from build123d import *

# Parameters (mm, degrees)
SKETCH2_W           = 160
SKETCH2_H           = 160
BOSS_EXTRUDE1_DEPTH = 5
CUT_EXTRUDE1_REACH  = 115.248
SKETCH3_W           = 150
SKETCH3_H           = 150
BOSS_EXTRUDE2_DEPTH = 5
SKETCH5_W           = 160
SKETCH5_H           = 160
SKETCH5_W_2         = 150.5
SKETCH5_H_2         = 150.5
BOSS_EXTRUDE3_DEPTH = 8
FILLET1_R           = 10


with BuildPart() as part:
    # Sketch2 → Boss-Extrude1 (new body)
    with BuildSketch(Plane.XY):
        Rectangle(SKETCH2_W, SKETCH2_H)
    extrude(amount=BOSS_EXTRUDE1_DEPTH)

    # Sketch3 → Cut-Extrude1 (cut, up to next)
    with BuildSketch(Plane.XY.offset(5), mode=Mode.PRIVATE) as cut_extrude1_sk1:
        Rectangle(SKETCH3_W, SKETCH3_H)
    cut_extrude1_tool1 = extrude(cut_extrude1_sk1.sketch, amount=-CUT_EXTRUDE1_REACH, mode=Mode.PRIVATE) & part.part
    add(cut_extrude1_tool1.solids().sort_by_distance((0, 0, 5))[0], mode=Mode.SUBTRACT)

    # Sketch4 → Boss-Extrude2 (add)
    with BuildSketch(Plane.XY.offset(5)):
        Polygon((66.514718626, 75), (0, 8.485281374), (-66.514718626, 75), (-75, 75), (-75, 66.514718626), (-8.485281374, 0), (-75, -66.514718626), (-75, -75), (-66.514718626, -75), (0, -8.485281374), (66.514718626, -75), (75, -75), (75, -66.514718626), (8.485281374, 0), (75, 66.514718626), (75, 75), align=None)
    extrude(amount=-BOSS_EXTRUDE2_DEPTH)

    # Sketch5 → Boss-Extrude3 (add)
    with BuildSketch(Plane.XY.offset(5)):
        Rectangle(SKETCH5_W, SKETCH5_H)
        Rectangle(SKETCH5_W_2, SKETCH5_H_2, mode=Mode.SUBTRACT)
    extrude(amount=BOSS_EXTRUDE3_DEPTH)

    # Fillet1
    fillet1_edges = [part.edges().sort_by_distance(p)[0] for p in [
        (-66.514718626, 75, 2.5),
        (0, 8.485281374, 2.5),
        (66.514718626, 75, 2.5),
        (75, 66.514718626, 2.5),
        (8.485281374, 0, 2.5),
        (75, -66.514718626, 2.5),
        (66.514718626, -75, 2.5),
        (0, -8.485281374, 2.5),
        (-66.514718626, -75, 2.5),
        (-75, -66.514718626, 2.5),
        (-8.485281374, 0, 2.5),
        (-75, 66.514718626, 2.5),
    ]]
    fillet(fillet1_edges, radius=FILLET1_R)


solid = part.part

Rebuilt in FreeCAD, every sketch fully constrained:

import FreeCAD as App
import Part
import Sketcher
from FreeCAD import Vector
Q = App.Units.Quantity


def edges_at(feature, points):
    """Names of the edges that pass closest to the given points."""
    edges = feature.Shape.Edges
    near = lambda p: min(range(len(edges)), key=lambda i: edges[i].distToShape(Part.Vertex(*p))[0])
    return sorted({f"Edge{near(p) + 1}" for p in points})

doc = App.newDocument("Part")
body = doc.addObject("PartDesign::Body", "Body")

# Sketch on XY plane
sketch1 = body.newObject("Sketcher::SketchObject", "Sketch")
sketch1.AttachmentSupport = (doc.getObject("XY_Plane"), [""])
sketch1.MapMode = "FlatFace"
sketch1.addGeometry([
    Part.LineSegment(Vector(-80, 80, 0), Vector(-80, -80, 0)),
    Part.LineSegment(Vector(-80, -80, 0), Vector(80, -80, 0)),
    Part.LineSegment(Vector(80, -80, 0), Vector(80, 80, 0)),
    Part.LineSegment(Vector(80, 80, 0), Vector(-80, 80, 0)),
], False)
sketch1.addConstraint([
    Sketcher.Constraint("Coincident", 0, 2, 1, 1),
    Sketcher.Constraint("Coincident", 1, 2, 2, 1),
    Sketcher.Constraint("Coincident", 2, 2, 3, 1),
    Sketcher.Constraint("Coincident", 3, 2, 0, 1),
    Sketcher.Constraint("Vertical", 0),
    Sketcher.Constraint("Horizontal", 1),
    Sketcher.Constraint("Vertical", 2),
    Sketcher.Constraint("Horizontal", 3),
    Sketcher.Constraint("Symmetric", 0, 2, 2, 2, -1, 1),
    Sketcher.Constraint("Equal", 3, 0),
    Sketcher.Constraint("DistanceX", 1, 1, 1, 2, Q("160 mm")),
])
pad1 = body.newObject("PartDesign::Pad", "Pad")
pad1.Profile = sketch1
pad1.Length = 5

# Sketch on XY plane
sketch2 = body.newObject("Sketcher::SketchObject", "Sketch001")
sketch2.AttachmentSupport = (doc.getObject("XY_Plane"), [""])
sketch2.MapMode = "FlatFace"
sketch2.AttachmentOffset = App.Placement(Vector(0, 0, 5), App.Rotation())
sketch2.addGeometry([
    Part.LineSegment(Vector(-75, 75, 0), Vector(-75, -75, 0)),
    Part.LineSegment(Vector(-75, -75, 0), Vector(75, -75, 0)),
    Part.LineSegment(Vector(75, -75, 0), Vector(75, 75, 0)),
    Part.LineSegment(Vector(75, 75, 0), Vector(-75, 75, 0)),
], False)
sketch2.addConstraint([
    Sketcher.Constraint("Coincident", 0, 2, 1, 1),
    Sketcher.Constraint("Coincident", 1, 2, 2, 1),
    Sketcher.Constraint("Coincident", 2, 2, 3, 1),
    Sketcher.Constraint("Coincident", 3, 2, 0, 1),
    Sketcher.Constraint("Vertical", 0),
    Sketcher.Constraint("Horizontal", 1),
    Sketcher.Constraint("Vertical", 2),
    Sketcher.Constraint("Horizontal", 3),
    Sketcher.Constraint("Symmetric", 0, 2, 2, 2, -1, 1),
    Sketcher.Constraint("Equal", 3, 0),
    Sketcher.Constraint("DistanceX", 1, 1, 1, 2, Q("150 mm")),
])
pocket1 = body.newObject("PartDesign::Pocket", "Pocket")
pocket1.Profile = sketch2
pocket1.Type = "UpToFirst"

# Sketch on XY plane
sketch3 = body.newObject("Sketcher::SketchObject", "Sketch002")
sketch3.AttachmentSupport = (doc.getObject("XY_Plane"), [""])
sketch3.MapMode = "FlatFace"
sketch3.AttachmentOffset = App.Placement(Vector(0, 0, 5), App.Rotation())
sketch3.addGeometry([
    Part.LineSegment(Vector(66.514719, 75, 0), Vector(0, 8.485281, 0)),  # 0
    Part.LineSegment(Vector(0, 8.485281, 0), Vector(-66.514719, 75, 0)),  # 1
    Part.LineSegment(Vector(-66.514719, 75, 0), Vector(-75, 75, 0)),  # 2
    Part.LineSegment(Vector(-75, 75, 0), Vector(-75, 66.514719, 0)),  # 3
    Part.LineSegment(Vector(-75, 66.514719, 0), Vector(-8.485281, 0, 0)),  # 4
    Part.LineSegment(Vector(-8.485281, 0, 0), Vector(-75, -66.514719, 0)),  # 5
    Part.LineSegment(Vector(-75, -66.514719, 0), Vector(-75, -75, 0)),  # 6
    Part.LineSegment(Vector(-75, -75, 0), Vector(-66.514719, -75, 0)),  # 7
    Part.LineSegment(Vector(-66.514719, -75, 0), Vector(0, -8.485281, 0)),  # 8
    Part.LineSegment(Vector(0, -8.485281, 0), Vector(66.514719, -75, 0)),  # 9
    Part.LineSegment(Vector(66.514719, -75, 0), Vector(75, -75, 0)),  # 10
    Part.LineSegment(Vector(75, -75, 0), Vector(75, -66.514719, 0)),  # 11
    Part.LineSegment(Vector(75, -66.514719, 0), Vector(8.485281, 0, 0)),  # 12
    Part.LineSegment(Vector(8.485281, 0, 0), Vector(75, 66.514719, 0)),  # 13
    Part.LineSegment(Vector(75, 66.514719, 0), Vector(75, 75, 0)),  # 14
    Part.LineSegment(Vector(75, 75, 0), Vector(66.514719, 75, 0)),  # 15
], False)
sketch3.addConstraint([
    Sketcher.Constraint("Coincident", 0, 2, 1, 1),
    Sketcher.Constraint("Coincident", 1, 2, 2, 1),
    Sketcher.Constraint("Coincident", 2, 2, 3, 1),
    Sketcher.Constraint("Coincident", 3, 2, 4, 1),
    Sketcher.Constraint("Coincident", 4, 2, 5, 1),
    Sketcher.Constraint("Coincident", 5, 2, 6, 1),
    Sketcher.Constraint("Coincident", 6, 2, 7, 1),
    Sketcher.Constraint("Coincident", 7, 2, 8, 1),
    Sketcher.Constraint("Coincident", 8, 2, 9, 1),
    Sketcher.Constraint("Coincident", 9, 2, 10, 1),
    Sketcher.Constraint("Coincident", 10, 2, 11, 1),
    Sketcher.Constraint("Coincident", 11, 2, 12, 1),
    Sketcher.Constraint("Coincident", 12, 2, 13, 1),
    Sketcher.Constraint("Coincident", 13, 2, 14, 1),
    Sketcher.Constraint("Coincident", 14, 2, 15, 1),
    Sketcher.Constraint("Coincident", 15, 2, 0, 1),
    Sketcher.Constraint("Horizontal", 2),
    Sketcher.Constraint("Vertical", 3),
    Sketcher.Constraint("Vertical", 6),
    Sketcher.Constraint("Horizontal", 7),
    Sketcher.Constraint("Horizontal", 10),
    Sketcher.Constraint("Vertical", 11),
    Sketcher.Constraint("Vertical", 14),
    Sketcher.Constraint("Horizontal", 15),
    Sketcher.Constraint("Symmetric", 0, 2, 8, 2, -1, 1),
    Sketcher.Constraint("Symmetric", 1, 2, 9, 2, -1, 1),
    Sketcher.Constraint("Symmetric", 3, 2, 11, 2, -1, 1),
    Sketcher.Constraint("Symmetric", 4, 2, 12, 2, -1, 1),
    Sketcher.Constraint("Symmetric", 5, 2, 13, 2, -1, 1),
    Sketcher.Constraint("Symmetric", 7, 2, 15, 2, -1, 1),
    Sketcher.Constraint("Symmetric", 7, 2, 9, 2, -2),
    Sketcher.Constraint("Symmetric", 5, 2, 11, 2, -2),
    Sketcher.Constraint("PointOnObject", 0, 2, -2),
    Sketcher.Constraint("PointOnObject", 4, 2, -1),
    Sketcher.Constraint("Perpendicular", 0, 1),
    Sketcher.Constraint("Parallel", 1, 4),
    Sketcher.Constraint("Equal", 15, 3),
    Sketcher.Constraint("Equal", 1, 4),
    Sketcher.Constraint("DistanceY", -1, 1, 1, 2, Q("75 mm")),
    Sketcher.Constraint("DistanceX", 2, 2, 2, 1, Q("8.485281 mm")),
])
pad2 = body.newObject("PartDesign::Pad", "Pad001")
pad2.Profile = sketch3
pad2.Length = 5
pad2.Reversed = True

# Sketch on XY plane
sketch4 = body.newObject("Sketcher::SketchObject", "Sketch003")
sketch4.AttachmentSupport = (doc.getObject("XY_Plane"), [""])
sketch4.MapMode = "FlatFace"
sketch4.AttachmentOffset = App.Placement(Vector(0, 0, 5), App.Rotation())
sketch4.addGeometry([
    Part.LineSegment(Vector(-80, 80, 0), Vector(-80, -80, 0)),  # 0
    Part.LineSegment(Vector(-80, -80, 0), Vector(80, -80, 0)),  # 1
    Part.LineSegment(Vector(80, -80, 0), Vector(80, 80, 0)),  # 2
    Part.LineSegment(Vector(80, 80, 0), Vector(-80, 80, 0)),  # 3
    Part.LineSegment(Vector(75.25, -75.25, 0), Vector(-75.25, -75.25, 0)),  # 4
    Part.LineSegment(Vector(-75.25, -75.25, 0), Vector(-75.25, 75.25, 0)),  # 5
    Part.LineSegment(Vector(-75.25, 75.25, 0), Vector(75.25, 75.25, 0)),  # 6
    Part.LineSegment(Vector(75.25, 75.25, 0), Vector(75.25, -75.25, 0)),  # 7
], False)
sketch4.addConstraint([
    Sketcher.Constraint("Coincident", 0, 2, 1, 1),
    Sketcher.Constraint("Coincident", 1, 2, 2, 1),
    Sketcher.Constraint("Coincident", 2, 2, 3, 1),
    Sketcher.Constraint("Coincident", 3, 2, 0, 1),
    Sketcher.Constraint("Coincident", 4, 2, 5, 1),
    Sketcher.Constraint("Coincident", 5, 2, 6, 1),
    Sketcher.Constraint("Coincident", 6, 2, 7, 1),
    Sketcher.Constraint("Coincident", 7, 2, 4, 1),
    Sketcher.Constraint("Vertical", 0),
    Sketcher.Constraint("Horizontal", 1),
    Sketcher.Constraint("Vertical", 2),
    Sketcher.Constraint("Horizontal", 3),
    Sketcher.Constraint("Horizontal", 4),
    Sketcher.Constraint("Vertical", 5),
    Sketcher.Constraint("Horizontal", 6),
    Sketcher.Constraint("Vertical", 7),
    Sketcher.Constraint("Symmetric", 0, 2, 2, 2, -1, 1),
    Sketcher.Constraint("Symmetric", 4, 2, 6, 2, -1, 1),
    Sketcher.Constraint("Equal", 3, 0),
    Sketcher.Constraint("Equal", 6, 5),
    Sketcher.Constraint("DistanceX", 1, 1, 1, 2, Q("160 mm")),
    Sketcher.Constraint("DistanceX", 4, 2, 4, 1, Q("150.5 mm")),
])
pad3 = body.newObject("PartDesign::Pad", "Pad002")
pad3.Profile = sketch4
pad3.Length = 8
doc.recompute()

fillet = body.newObject("PartDesign::Fillet", "Fillet")
fillet.Base = (pad3, edges_at(pad3, [
    (-66.515, 75, 2.5),
    (0, 8.485, 2.5),
    (66.515, 75, 2.5),
    (75, 66.515, 2.5),
    (8.485, 0, 2.5),
    (75, -66.515, 2.5),
    (66.515, -75, 2.5),
    (0, -8.485, 2.5),
    (-66.515, -75, 2.5),
    (-75, -66.515, 2.5),
    (-8.485, 0, 2.5),
    (-75, 66.515, 2.5),
]))
fillet.Radius = 10

doc.recompute()
